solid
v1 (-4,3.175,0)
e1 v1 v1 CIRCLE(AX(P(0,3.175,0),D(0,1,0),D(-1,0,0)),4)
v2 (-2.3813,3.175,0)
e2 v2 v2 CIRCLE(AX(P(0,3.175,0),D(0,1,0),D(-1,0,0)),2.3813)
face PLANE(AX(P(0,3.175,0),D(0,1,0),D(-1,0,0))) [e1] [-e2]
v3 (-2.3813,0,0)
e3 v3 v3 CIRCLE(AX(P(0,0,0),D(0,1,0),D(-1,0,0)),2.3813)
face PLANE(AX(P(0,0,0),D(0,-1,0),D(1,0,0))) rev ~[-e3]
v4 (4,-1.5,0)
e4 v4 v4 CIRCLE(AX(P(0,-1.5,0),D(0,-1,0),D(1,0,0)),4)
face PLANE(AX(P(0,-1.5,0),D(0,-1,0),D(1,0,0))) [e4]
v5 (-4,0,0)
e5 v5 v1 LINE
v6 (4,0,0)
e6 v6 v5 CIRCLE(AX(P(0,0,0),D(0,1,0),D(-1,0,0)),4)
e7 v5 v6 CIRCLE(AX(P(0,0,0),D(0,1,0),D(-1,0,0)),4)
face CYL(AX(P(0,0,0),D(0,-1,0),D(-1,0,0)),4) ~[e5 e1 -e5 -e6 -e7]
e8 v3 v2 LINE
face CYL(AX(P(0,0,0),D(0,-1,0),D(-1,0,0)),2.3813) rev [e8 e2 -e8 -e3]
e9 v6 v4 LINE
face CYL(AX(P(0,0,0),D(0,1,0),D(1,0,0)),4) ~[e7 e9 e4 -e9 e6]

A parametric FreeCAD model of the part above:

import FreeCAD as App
import Part
import Sketcher

V = App.Vector

doc = App.newDocument("Part")
body = doc.addObject("PartDesign::Body", "Body")

sketch1 = doc.addObject("Sketcher::SketchObject", "Sketch")
body.addObject(sketch1)
sketch1.AttachmentSupport = (doc.XZ_Plane, [""])
sketch1.MapMode = "FlatFace"
sketch1.addGeometry(Part.Circle(V(0, 0, 0), V(0, 0, 1), 4), False)
sketch1.addGeometry(Part.Circle(V(0, 0, 0), V(0, 0, 1), 2.4), False)
sketch1.addConstraint(Sketcher.Constraint("Coincident", 0, 3, -1, 1))
sketch1.addConstraint(Sketcher.Constraint("Coincident", 1, 3, -1, 1))
sketch1.addConstraint(Sketcher.Constraint("Diameter", 0, 8.0))
sketch1.addConstraint(Sketcher.Constraint("Diameter", 1, 4.7626))
pad1 = doc.addObject("PartDesign::Pad", "Pad")
body.addObject(pad1)
pad1.Profile = sketch1
pad1.Length = 3.175
pad1.Reversed = True

sketch2 = doc.addObject("Sketcher::SketchObject", "Sketch001")
body.addObject(sketch2)
sketch2.AttachmentSupport = (doc.XZ_Plane, [""])
sketch2.MapMode = "FlatFace"
sketch2.addGeometry(Part.Circle(V(0, 0, 0), V(0, 0, 1), 4), False)
sketch2.addConstraint(Sketcher.Constraint("Coincident", 0, 3, -1, 1))
sketch2.addConstraint(Sketcher.Constraint("Diameter", 0, 8.0))
pad2 = doc.addObject("PartDesign::Pad", "Pad001")
body.addObject(pad2)
pad2.Profile = sketch2
pad2.Length = 1.5

doc.recompute()
